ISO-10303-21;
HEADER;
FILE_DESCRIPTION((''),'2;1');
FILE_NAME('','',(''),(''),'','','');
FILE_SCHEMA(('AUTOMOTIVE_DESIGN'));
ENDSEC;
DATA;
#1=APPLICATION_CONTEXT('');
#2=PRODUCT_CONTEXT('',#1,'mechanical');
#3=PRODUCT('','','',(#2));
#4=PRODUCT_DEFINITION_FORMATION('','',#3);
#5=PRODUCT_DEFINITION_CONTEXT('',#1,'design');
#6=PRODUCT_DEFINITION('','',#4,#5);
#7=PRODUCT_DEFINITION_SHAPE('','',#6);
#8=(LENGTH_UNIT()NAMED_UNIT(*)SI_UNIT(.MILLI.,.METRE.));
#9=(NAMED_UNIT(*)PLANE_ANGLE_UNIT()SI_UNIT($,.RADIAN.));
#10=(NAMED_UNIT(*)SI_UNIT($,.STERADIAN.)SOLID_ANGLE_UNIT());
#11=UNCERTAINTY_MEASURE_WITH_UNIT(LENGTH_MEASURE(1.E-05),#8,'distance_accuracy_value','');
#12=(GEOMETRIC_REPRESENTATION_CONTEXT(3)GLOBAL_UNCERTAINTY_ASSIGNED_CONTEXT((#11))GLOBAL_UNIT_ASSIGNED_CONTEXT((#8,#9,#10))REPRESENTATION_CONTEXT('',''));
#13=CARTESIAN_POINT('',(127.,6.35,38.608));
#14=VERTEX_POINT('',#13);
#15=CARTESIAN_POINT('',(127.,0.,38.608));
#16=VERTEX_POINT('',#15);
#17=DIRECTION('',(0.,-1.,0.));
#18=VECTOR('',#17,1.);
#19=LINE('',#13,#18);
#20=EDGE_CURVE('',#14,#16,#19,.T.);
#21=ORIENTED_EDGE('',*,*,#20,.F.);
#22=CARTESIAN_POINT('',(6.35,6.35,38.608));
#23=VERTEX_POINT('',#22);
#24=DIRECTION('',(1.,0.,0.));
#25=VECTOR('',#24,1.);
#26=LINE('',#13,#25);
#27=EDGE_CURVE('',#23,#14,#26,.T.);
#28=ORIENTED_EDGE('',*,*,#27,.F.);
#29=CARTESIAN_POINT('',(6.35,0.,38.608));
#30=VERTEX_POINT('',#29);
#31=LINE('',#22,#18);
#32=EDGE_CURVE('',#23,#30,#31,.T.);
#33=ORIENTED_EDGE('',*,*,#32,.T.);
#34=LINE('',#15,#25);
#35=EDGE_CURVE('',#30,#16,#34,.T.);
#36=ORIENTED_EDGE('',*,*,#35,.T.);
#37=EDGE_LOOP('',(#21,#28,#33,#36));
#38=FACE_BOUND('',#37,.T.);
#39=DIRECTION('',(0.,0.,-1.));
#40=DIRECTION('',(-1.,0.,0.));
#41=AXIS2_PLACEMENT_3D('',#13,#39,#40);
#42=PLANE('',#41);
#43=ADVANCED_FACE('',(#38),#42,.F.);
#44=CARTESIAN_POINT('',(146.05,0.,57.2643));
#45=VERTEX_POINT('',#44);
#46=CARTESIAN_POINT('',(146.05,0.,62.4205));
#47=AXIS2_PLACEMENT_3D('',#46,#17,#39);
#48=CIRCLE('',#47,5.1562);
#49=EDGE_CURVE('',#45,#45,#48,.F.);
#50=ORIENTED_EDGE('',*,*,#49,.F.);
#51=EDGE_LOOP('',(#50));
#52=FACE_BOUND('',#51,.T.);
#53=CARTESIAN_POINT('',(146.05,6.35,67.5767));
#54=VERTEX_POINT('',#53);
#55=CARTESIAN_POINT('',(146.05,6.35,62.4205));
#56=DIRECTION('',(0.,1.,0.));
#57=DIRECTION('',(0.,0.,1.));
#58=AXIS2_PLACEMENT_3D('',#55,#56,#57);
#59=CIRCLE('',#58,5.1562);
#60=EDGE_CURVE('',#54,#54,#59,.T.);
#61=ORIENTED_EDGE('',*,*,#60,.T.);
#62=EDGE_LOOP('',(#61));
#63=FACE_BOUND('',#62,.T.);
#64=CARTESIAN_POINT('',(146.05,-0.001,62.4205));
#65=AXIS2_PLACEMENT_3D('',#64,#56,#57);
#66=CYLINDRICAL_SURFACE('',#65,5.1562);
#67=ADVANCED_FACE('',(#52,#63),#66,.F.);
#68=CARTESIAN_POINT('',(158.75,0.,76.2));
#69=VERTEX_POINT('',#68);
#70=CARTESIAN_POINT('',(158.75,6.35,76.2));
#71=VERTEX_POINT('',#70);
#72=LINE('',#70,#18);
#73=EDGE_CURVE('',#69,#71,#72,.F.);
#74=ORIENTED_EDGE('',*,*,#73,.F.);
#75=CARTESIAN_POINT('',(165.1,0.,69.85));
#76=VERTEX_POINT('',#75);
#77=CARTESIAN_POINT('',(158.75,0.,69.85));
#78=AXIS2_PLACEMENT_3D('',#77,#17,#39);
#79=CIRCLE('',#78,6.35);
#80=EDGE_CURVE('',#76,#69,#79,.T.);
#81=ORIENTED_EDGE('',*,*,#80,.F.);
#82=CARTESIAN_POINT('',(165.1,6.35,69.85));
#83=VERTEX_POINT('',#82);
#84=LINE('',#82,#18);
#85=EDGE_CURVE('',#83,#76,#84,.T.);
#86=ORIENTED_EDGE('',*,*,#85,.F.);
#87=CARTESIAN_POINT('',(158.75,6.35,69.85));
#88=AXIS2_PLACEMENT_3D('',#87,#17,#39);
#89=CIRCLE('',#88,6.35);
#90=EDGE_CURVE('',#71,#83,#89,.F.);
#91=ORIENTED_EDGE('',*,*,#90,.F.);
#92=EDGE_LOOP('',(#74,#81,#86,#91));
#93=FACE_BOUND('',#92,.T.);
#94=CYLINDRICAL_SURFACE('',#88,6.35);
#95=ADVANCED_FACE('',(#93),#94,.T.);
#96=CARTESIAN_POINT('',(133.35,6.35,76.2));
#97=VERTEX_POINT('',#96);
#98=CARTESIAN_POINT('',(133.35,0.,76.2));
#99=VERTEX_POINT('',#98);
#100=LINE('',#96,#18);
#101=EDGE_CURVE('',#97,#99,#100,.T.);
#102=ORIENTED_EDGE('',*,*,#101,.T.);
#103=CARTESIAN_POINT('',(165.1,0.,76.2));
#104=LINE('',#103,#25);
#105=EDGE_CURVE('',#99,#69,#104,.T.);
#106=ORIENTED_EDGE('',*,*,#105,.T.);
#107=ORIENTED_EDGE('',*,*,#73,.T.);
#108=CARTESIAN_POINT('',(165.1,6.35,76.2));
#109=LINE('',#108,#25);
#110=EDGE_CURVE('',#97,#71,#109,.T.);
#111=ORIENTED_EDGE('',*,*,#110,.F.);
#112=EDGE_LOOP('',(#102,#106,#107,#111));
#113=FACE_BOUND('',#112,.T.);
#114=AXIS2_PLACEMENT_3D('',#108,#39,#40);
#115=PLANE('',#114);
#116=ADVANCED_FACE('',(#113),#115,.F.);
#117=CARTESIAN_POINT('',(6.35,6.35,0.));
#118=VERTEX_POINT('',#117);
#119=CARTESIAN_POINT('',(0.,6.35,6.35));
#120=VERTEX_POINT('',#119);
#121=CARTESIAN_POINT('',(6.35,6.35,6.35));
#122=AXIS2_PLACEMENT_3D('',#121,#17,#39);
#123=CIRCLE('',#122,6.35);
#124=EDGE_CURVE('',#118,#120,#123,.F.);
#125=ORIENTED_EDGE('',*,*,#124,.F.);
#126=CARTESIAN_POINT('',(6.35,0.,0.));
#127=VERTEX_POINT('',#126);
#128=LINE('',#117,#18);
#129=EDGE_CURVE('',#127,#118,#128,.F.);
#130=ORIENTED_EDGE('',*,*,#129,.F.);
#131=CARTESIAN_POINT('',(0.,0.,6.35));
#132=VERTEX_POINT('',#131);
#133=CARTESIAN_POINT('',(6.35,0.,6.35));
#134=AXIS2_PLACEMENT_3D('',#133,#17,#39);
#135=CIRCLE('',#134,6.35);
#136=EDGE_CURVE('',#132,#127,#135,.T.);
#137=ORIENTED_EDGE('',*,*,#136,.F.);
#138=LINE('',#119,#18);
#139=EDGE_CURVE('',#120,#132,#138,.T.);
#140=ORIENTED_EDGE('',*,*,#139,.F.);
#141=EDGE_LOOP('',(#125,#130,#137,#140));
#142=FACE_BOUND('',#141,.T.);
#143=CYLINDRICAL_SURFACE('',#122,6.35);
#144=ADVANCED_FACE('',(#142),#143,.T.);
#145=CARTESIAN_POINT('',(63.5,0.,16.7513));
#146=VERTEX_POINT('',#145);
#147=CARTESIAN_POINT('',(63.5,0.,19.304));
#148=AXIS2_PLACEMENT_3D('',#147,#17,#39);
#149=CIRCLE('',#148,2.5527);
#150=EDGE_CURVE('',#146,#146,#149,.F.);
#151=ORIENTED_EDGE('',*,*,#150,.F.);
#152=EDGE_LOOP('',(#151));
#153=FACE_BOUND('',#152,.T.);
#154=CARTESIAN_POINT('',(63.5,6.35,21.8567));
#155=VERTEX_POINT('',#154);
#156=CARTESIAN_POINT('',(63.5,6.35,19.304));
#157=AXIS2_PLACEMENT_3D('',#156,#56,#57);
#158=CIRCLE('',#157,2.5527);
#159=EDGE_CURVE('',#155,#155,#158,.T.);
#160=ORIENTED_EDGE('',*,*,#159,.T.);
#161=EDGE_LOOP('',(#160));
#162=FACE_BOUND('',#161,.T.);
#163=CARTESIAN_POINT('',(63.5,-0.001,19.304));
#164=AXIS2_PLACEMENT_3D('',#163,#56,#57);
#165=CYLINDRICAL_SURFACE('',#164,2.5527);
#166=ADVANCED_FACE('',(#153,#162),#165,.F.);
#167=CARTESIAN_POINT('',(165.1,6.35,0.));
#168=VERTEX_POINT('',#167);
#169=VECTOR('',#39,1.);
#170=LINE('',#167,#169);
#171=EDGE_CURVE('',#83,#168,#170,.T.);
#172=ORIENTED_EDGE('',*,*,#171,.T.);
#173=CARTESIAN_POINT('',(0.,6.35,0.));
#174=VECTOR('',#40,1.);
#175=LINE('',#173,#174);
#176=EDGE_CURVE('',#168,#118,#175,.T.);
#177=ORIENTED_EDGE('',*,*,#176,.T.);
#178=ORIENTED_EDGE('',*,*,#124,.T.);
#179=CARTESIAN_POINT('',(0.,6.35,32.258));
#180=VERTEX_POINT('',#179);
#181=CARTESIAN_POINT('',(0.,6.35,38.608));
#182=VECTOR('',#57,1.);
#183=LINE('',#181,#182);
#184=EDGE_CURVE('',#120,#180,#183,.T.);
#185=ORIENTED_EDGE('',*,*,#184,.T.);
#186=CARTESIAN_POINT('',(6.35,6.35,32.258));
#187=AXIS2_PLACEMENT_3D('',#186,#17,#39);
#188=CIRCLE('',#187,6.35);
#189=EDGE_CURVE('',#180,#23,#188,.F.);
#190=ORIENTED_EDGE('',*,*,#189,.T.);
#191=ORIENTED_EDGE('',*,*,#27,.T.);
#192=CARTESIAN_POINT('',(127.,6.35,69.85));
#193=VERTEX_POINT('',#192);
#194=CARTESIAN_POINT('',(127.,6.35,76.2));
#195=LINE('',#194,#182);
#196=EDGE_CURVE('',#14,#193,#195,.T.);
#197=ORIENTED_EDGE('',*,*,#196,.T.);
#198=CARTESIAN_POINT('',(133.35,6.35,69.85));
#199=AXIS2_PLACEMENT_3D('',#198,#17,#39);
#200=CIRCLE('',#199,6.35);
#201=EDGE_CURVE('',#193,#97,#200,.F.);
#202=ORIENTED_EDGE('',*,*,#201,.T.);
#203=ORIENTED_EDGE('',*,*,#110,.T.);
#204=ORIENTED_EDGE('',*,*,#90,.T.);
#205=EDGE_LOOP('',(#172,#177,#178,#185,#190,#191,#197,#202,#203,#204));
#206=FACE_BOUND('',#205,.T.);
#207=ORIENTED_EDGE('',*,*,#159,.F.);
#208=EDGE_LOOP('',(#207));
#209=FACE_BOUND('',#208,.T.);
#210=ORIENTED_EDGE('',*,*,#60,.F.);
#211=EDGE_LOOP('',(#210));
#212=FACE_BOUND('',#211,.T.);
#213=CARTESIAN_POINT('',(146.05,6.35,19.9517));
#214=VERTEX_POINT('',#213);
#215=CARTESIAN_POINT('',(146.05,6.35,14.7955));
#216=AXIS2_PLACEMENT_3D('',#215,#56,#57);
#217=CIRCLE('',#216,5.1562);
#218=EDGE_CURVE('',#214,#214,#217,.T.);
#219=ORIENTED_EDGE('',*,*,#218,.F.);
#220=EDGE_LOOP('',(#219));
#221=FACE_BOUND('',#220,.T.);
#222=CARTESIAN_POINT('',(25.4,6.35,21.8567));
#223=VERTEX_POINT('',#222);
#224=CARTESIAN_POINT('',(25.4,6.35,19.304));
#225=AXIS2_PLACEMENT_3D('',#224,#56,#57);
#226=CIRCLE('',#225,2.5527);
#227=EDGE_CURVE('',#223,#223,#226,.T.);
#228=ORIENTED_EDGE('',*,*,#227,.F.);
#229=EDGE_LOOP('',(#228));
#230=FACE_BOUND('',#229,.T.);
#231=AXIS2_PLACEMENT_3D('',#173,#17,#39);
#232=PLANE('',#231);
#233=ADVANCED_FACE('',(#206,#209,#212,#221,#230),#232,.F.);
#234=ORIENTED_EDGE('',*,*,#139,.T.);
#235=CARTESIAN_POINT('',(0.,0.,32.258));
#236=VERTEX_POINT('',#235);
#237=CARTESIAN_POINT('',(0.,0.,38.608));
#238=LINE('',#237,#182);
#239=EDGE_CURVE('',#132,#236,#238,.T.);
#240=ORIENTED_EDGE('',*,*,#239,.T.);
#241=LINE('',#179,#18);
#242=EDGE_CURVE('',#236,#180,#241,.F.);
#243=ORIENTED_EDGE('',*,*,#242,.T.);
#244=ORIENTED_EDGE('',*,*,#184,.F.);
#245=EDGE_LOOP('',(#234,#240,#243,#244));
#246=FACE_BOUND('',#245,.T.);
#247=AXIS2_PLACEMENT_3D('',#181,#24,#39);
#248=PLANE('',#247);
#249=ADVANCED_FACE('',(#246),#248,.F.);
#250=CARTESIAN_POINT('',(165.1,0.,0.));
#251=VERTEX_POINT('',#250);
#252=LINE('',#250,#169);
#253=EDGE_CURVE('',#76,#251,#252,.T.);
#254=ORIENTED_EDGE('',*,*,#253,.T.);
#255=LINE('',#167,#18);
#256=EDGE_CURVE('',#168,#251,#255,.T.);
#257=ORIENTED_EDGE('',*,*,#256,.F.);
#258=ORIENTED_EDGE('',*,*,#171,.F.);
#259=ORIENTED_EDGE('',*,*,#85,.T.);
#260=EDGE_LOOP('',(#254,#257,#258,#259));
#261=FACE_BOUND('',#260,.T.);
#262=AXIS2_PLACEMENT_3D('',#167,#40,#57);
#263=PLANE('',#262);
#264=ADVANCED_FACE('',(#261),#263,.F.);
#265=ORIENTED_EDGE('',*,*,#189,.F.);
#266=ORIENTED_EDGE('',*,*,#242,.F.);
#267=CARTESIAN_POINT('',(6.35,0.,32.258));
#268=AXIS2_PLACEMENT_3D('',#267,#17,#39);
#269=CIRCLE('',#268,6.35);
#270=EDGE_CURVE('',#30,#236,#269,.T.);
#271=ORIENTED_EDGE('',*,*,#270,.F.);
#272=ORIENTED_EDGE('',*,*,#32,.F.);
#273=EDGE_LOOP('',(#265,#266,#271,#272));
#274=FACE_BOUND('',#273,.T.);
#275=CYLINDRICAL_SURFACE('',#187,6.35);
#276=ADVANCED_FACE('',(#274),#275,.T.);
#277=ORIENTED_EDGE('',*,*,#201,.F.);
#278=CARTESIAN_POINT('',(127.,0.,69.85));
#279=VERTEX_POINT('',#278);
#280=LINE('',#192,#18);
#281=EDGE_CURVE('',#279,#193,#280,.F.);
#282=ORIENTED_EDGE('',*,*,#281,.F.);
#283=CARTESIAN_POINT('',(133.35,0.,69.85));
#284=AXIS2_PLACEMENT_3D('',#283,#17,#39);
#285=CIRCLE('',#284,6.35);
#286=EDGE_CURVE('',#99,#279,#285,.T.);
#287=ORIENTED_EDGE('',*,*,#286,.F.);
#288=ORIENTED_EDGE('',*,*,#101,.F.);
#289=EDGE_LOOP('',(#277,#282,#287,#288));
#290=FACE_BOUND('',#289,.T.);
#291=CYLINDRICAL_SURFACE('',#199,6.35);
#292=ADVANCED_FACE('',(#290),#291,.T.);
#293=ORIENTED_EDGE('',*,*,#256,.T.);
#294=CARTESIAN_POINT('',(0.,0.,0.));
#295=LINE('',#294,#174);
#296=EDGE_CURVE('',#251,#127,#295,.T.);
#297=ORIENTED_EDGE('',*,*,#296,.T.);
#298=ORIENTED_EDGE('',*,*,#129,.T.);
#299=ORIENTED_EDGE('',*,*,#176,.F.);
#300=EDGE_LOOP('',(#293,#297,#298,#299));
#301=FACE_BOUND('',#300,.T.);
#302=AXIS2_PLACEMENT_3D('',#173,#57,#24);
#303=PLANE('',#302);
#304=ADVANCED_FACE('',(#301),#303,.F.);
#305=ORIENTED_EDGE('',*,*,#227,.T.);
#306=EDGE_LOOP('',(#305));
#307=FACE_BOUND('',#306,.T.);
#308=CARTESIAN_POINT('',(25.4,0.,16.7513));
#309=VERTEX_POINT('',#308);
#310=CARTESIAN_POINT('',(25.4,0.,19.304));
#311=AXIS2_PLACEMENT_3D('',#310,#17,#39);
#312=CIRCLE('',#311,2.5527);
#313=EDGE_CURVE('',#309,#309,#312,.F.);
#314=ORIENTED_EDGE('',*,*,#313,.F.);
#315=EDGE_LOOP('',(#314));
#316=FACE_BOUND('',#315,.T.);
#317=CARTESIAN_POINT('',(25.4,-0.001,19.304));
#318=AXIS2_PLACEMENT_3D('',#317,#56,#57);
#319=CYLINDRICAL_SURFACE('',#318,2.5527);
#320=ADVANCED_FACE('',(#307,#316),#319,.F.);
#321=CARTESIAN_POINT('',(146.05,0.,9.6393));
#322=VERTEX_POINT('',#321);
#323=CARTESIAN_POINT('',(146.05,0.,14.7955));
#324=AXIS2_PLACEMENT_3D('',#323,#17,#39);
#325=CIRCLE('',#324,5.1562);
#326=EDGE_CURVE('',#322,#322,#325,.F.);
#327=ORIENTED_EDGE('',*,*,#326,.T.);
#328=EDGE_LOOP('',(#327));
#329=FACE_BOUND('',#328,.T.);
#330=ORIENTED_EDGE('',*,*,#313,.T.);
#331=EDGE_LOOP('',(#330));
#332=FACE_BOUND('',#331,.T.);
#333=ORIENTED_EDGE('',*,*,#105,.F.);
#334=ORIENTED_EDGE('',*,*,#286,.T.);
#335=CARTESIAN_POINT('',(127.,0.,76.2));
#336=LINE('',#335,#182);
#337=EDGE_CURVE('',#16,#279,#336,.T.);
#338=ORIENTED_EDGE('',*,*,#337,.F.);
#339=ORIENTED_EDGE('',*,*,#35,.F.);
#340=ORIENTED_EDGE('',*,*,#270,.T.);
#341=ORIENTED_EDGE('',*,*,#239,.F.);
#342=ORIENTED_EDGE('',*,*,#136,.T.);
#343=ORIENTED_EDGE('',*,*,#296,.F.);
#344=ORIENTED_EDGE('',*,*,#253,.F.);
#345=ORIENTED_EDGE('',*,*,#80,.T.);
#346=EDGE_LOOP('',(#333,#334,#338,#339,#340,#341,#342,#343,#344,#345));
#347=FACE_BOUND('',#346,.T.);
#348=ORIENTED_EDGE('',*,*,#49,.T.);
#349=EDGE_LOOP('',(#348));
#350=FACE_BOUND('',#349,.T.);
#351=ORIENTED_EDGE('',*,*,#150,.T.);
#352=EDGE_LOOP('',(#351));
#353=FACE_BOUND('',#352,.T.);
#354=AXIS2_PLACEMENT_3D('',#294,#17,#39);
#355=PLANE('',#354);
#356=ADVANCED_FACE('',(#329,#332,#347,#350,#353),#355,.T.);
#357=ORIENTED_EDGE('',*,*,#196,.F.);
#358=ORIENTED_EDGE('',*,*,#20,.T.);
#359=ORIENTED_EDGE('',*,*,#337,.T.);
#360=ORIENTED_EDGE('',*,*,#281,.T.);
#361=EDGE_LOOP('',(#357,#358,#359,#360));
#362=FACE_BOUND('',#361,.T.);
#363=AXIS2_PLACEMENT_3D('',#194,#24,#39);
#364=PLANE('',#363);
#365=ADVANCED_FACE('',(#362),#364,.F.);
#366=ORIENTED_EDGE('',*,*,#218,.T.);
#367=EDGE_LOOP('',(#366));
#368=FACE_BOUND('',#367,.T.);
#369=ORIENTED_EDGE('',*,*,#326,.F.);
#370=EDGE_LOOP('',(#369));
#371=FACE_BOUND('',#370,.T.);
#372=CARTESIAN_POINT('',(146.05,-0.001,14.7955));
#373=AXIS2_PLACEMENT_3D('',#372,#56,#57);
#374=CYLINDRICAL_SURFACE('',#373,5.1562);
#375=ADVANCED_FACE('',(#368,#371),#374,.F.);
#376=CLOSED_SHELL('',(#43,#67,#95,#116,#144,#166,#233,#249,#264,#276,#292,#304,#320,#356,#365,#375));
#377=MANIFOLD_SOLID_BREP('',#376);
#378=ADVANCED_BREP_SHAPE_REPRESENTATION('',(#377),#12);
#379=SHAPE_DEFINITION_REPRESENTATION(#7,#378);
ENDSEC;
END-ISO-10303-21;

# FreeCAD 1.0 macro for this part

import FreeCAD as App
import Part
import Sketcher
from FreeCAD import Vector
Q = App.Units.Quantity


def edges_at(feature, points):
    """Names of the edges that pass closest to the given points."""
    edges = feature.Shape.Edges
    near = lambda p: min(range(len(edges)), key=lambda i: edges[i].distToShape(Part.Vertex(*p))[0])
    return sorted({f"Edge{near(p) + 1}" for p in points})


def add_polygon(sketch, points):
    """Adds a closed chain of lines whose ends are joined by coincident constraints."""
    first, n = sketch.GeometryCount, len(points)
    for a, b in zip(points, points[1:] + points[:1]):
        sketch.addGeometry(Part.LineSegment(App.Vector(*a, 0), App.Vector(*b, 0)), False)
    for i in range(n):
        sketch.addConstraint(Sketcher.Constraint("Coincident", first + i, 2, first + (i + 1) % n, 1))

doc = App.newDocument("Part")
body = doc.addObject("PartDesign::Body", "Body")

# Sketch on XZ plane
sketch1 = body.newObject("Sketcher::SketchObject", "Sketch")
sketch1.AttachmentSupport = (doc.getObject("XZ_Plane"), [""])
sketch1.MapMode = "FlatFace"
add_polygon(sketch1, [(165, 0), (0, 0), (0, 39), (127, 39), (127, 76), (165, 76)])  # lines 0-5
sketch1.addConstraint(Sketcher.Constraint("Horizontal", 0))
sketch1.addConstraint(Sketcher.Constraint("Vertical", 1))
sketch1.addConstraint(Sketcher.Constraint("Horizontal", 2))
sketch1.addConstraint(Sketcher.Constraint("Vertical", 3))
sketch1.addConstraint(Sketcher.Constraint("Horizontal", 4))
sketch1.addConstraint(Sketcher.Constraint("Vertical", 5))
sketch1.addConstraint(Sketcher.Constraint("Coincident", 0, 2, -1, 1))
sketch1.addConstraint(Sketcher.Constraint("DistanceX", 2, 1, 2, 2, Q("5 in")))
sketch1.addConstraint(Sketcher.Constraint("DistanceY", 5, 2, 5, 1, Q("3 in")))
sketch1.addConstraint(Sketcher.Constraint("DistanceX", 0, 2, 0, 1, Q("6.5 in")))
sketch1.addConstraint(Sketcher.Constraint("DistanceY", 1, 1, 1, 2, Q("1.52 in")))
pad1 = body.newObject("PartDesign::Pad", "Pad")
pad1.Profile = sketch1
pad1.Length = Q("0.25 in")
pad1.Reversed = True

# Sketch on XZ plane
sketch2 = body.newObject("Sketcher::SketchObject", "Sketch001")
sketch2.AttachmentSupport = (doc.getObject("XZ_Plane"), [""])
sketch2.MapMode = "FlatFace"
sketch2.AttachmentOffset = App.Placement(Vector(0, 0, -0.25 * 25.4), App.Rotation())
sketch2.addGeometry(Part.Circle(Vector(25.4, 19.3, 0), Vector(0, 0, 1), 2.6), False)
sketch2.addConstraint(Sketcher.Constraint("Diameter", 0, Q("0.201 in")))
sketch2.addConstraint(Sketcher.Constraint("DistanceX", -1, 1, 0, 3, Q("1 in")))
sketch2.addConstraint(Sketcher.Constraint("DistanceY", -1, 1, 0, 3, Q("0.76 in")))
pocket1 = body.newObject("PartDesign::Pocket", "Pocket")
pocket1.Profile = sketch2
pocket1.Type = "UpToFirst"
pocket1.Reversed = True

# Sketch on XZ plane
sketch3 = body.newObject("Sketcher::SketchObject", "Sketch002")
sketch3.AttachmentSupport = (doc.getObject("XZ_Plane"), [""])
sketch3.MapMode = "FlatFace"
sketch3.AttachmentOffset = App.Placement(Vector(0, 0, -0.25 * 25.4), App.Rotation())
sketch3.addGeometry(Part.Circle(Vector(63.5, 19.3, 0), Vector(0, 0, 1), 2.6), False)
sketch3.addConstraint(Sketcher.Constraint("Diameter", 0, Q("0.201 in")))
sketch3.addConstraint(Sketcher.Constraint("DistanceX", -1, 1, 0, 3, Q("2.5 in")))
sketch3.addConstraint(Sketcher.Constraint("DistanceY", -1, 1, 0, 3, Q("0.76 in")))
pocket2 = body.newObject("PartDesign::Pocket", "Pocket001")
pocket2.Profile = sketch3
pocket2.Type = "UpToFirst"
pocket2.Reversed = True

# Sketch on XZ plane
sketch4 = body.newObject("Sketcher::SketchObject", "Sketch003")
sketch4.AttachmentSupport = (doc.getObject("XZ_Plane"), [""])
sketch4.MapMode = "FlatFace"
sketch4.AttachmentOffset = App.Placement(Vector(0, 0, -0.25 * 25.4), App.Rotation())
sketch4.addGeometry(Part.Circle(Vector(146, 15, 0), Vector(0, 0, 1), 5), False)
sketch4.addConstraint(Sketcher.Constraint("Diameter", 0, Q("0.406 in")))
sketch4.addConstraint(Sketcher.Constraint("DistanceX", -1, 1, 0, 3, Q("5.75 in")))
sketch4.addConstraint(Sketcher.Constraint("DistanceY", -1, 1, 0, 3, Q("0.5825 in")))
pocket3 = body.newObject("PartDesign::Pocket", "Pocket002")
pocket3.Profile = sketch4
pocket3.Type = "UpToFirst"
pocket3.Reversed = True

# Sketch on XZ plane
sketch5 = body.newObject("Sketcher::SketchObject", "Sketch004")
sketch5.AttachmentSupport = (doc.getObject("XZ_Plane"), [""])
sketch5.MapMode = "FlatFace"
sketch5.AttachmentOffset = App.Placement(Vector(0, 0, -0.25 * 25.4), App.Rotation())
sketch5.addGeometry(Part.Circle(Vector(146, 62, 0), Vector(0, 0, 1), 5), False)
sketch5.addConstraint(Sketcher.Constraint("Diameter", 0, Q("0.406 in")))
sketch5.addConstraint(Sketcher.Constraint("DistanceX", -1, 1, 0, 3, Q("5.75 in")))
sketch5.addConstraint(Sketcher.Constraint("DistanceY", -1, 1, 0, 3, Q("2.4575 in")))
pocket4 = body.newObject("PartDesign::Pocket", "Pocket003")
pocket4.Profile = sketch5
pocket4.Type = "UpToFirst"
pocket4.Reversed = True
doc.recompute()

fillet = body.newObject("PartDesign::Fillet", "Fillet")
fillet.Base = (pocket4, edges_at(pocket4, [
    (0, 3.175, 0),
    (165.1, 3.175, 76.2),
    (127, 3.175, 76.2),
    (0, 3.175, 38.608),
]))
fillet.Radius = Q("0.25 in")

doc.recompute()
